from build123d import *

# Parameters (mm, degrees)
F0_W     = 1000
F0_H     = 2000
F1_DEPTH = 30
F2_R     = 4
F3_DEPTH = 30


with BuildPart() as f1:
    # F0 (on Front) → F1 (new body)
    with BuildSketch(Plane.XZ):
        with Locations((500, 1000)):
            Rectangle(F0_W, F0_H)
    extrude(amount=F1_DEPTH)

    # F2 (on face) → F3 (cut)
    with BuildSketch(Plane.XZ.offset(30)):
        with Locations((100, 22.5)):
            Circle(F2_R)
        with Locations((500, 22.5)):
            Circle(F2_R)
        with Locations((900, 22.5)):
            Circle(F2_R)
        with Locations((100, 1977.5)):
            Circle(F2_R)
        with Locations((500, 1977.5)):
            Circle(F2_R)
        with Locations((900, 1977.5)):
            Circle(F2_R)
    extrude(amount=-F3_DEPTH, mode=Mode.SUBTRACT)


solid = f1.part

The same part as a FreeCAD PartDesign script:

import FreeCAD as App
import Part
import Sketcher
from FreeCAD import Vector
Q = App.Units.Quantity

doc = App.newDocument("Part")
params = doc.addObject("Spreadsheet::Sheet", "Params")
for row, (alias, value) in enumerate([
    ("sketch1_width", "1000 mm"),
    ("sketch1_height", "2000 mm"),
    ("pad1_length", "30 mm"),
    ("sketch2_diameter", "8 mm"),
    ("pocket1_length", "30 mm"),
], start=1):
    params.set(f"A{row}", alias)
    params.set(f"B{row}", "=" + value)
    params.setAlias(f"B{row}", alias)

body = doc.addObject("PartDesign::Body", "Body")

# Sketch on XZ plane
sketch1 = body.newObject("Sketcher::SketchObject", "Sketch")
sketch1.AttachmentSupport = (doc.getObject("XZ_Plane"), [""])
sketch1.MapMode = "FlatFace"
sketch1.addGeometry([
    Part.LineSegment(Vector(0, 2000, 0), Vector(0, 0, 0)),
    Part.LineSegment(Vector(0, 0, 0), Vector(1000, 0, 0)),
    Part.LineSegment(Vector(1000, 0, 0), Vector(1000, 2000, 0)),
    Part.LineSegment(Vector(1000, 2000, 0), Vector(0, 2000, 0)),
], False)
sketch1.addConstraint([
    Sketcher.Constraint("Coincident", 0, 2, 1, 1),
    Sketcher.Constraint("Coincident", 1, 2, 2, 1),
    Sketcher.Constraint("Coincident", 2, 2, 3, 1),
    Sketcher.Constraint("Coincident", 3, 2, 0, 1),
    Sketcher.Constraint("Vertical", 0),
    Sketcher.Constraint("Horizontal", 1),
    Sketcher.Constraint("Vertical", 2),
    Sketcher.Constraint("Horizontal", 3),
    Sketcher.Constraint("Coincident", 0, 2, -1, 1),
    Sketcher.Constraint("DistanceX", 1, 1, 1, 2, Q("1000 mm")),
    Sketcher.Constraint("DistanceY", 0, 2, 0, 1, Q("2000 mm")),
])
sketch1.setExpression("Constraints[9]", "Params.sketch1_width")
sketch1.setExpression("Constraints[10]", "Params.sketch1_height")
pad1 = body.newObject("PartDesign::Pad", "Pad")
pad1.Profile = sketch1
pad1.setExpression("Length", "Params.pad1_length")

# Sketch on XZ plane
sketch2 = body.newObject("Sketcher::SketchObject", "Sketch001")
sketch2.AttachmentSupport = (doc.getObject("XZ_Plane"), [""])
sketch2.MapMode = "FlatFace"
sketch2.AttachmentOffset = App.Placement(Vector(0, 0, 30), App.Rotation())
sketch2.addGeometry([
    Part.Circle(Vector(100, 22.5, 0), Vector(0, 0, 1), 4),  # 0
    Part.Circle(Vector(500, 22.5, 0), Vector(0, 0, 1), 4),  # 1
    Part.Circle(Vector(900, 22.5, 0), Vector(0, 0, 1), 4),  # 2
    Part.Circle(Vector(100, 1977.5, 0), Vector(0, 0, 1), 4),  # 3
    Part.Circle(Vector(500, 1977.5, 0), Vector(0, 0, 1), 4),  # 4
    Part.Circle(Vector(900, 1977.5, 0), Vector(0, 0, 1), 4),  # 5
], False)
sketch2.addConstraint([
    Sketcher.Constraint("Equal", 0, 1),
    Sketcher.Constraint("Equal", 1, 2),
    Sketcher.Constraint("Equal", 2, 3),
    Sketcher.Constraint("Equal", 3, 4),
    Sketcher.Constraint("Equal", 4, 5),
    Sketcher.Constraint("Horizontal", 0, 3, 1, 3),
    Sketcher.Constraint("Horizontal", 1, 3, 2, 3),
    Sketcher.Constraint("Horizontal", 3, 3, 4, 3),
    Sketcher.Constraint("Horizontal", 4, 3, 5, 3),
    Sketcher.Constraint("Vertical", 0, 3, 3, 3),
    Sketcher.Constraint("Vertical", 1, 3, 4, 3),
    Sketcher.Constraint("Vertical", 2, 3, 5, 3),
    Sketcher.Constraint("Diameter", 0, Q("8 mm")),
    Sketcher.Constraint("DistanceX", -1, 1, 0, 3, Q("100 mm")),
    Sketcher.Constraint("DistanceX", -1, 1, 1, 3, Q("500 mm")),
    Sketcher.Constraint("DistanceX", -1, 1, 2, 3, Q("900 mm")),
    Sketcher.Constraint("DistanceY", 0, 3, 3, 3, Q("1955 mm")),
    Sketcher.Constraint("DistanceY", -1, 1, 0, 3, Q("22.5 mm")),
])
sketch2.setExpression("Constraints[12]", "Params.sketch2_diameter")
pocket1 = body.newObject("PartDesign::Pocket", "Pocket")
pocket1.Profile = sketch2
pocket1.setExpression("Length", "Params.pocket1_length")

doc.recompute()
